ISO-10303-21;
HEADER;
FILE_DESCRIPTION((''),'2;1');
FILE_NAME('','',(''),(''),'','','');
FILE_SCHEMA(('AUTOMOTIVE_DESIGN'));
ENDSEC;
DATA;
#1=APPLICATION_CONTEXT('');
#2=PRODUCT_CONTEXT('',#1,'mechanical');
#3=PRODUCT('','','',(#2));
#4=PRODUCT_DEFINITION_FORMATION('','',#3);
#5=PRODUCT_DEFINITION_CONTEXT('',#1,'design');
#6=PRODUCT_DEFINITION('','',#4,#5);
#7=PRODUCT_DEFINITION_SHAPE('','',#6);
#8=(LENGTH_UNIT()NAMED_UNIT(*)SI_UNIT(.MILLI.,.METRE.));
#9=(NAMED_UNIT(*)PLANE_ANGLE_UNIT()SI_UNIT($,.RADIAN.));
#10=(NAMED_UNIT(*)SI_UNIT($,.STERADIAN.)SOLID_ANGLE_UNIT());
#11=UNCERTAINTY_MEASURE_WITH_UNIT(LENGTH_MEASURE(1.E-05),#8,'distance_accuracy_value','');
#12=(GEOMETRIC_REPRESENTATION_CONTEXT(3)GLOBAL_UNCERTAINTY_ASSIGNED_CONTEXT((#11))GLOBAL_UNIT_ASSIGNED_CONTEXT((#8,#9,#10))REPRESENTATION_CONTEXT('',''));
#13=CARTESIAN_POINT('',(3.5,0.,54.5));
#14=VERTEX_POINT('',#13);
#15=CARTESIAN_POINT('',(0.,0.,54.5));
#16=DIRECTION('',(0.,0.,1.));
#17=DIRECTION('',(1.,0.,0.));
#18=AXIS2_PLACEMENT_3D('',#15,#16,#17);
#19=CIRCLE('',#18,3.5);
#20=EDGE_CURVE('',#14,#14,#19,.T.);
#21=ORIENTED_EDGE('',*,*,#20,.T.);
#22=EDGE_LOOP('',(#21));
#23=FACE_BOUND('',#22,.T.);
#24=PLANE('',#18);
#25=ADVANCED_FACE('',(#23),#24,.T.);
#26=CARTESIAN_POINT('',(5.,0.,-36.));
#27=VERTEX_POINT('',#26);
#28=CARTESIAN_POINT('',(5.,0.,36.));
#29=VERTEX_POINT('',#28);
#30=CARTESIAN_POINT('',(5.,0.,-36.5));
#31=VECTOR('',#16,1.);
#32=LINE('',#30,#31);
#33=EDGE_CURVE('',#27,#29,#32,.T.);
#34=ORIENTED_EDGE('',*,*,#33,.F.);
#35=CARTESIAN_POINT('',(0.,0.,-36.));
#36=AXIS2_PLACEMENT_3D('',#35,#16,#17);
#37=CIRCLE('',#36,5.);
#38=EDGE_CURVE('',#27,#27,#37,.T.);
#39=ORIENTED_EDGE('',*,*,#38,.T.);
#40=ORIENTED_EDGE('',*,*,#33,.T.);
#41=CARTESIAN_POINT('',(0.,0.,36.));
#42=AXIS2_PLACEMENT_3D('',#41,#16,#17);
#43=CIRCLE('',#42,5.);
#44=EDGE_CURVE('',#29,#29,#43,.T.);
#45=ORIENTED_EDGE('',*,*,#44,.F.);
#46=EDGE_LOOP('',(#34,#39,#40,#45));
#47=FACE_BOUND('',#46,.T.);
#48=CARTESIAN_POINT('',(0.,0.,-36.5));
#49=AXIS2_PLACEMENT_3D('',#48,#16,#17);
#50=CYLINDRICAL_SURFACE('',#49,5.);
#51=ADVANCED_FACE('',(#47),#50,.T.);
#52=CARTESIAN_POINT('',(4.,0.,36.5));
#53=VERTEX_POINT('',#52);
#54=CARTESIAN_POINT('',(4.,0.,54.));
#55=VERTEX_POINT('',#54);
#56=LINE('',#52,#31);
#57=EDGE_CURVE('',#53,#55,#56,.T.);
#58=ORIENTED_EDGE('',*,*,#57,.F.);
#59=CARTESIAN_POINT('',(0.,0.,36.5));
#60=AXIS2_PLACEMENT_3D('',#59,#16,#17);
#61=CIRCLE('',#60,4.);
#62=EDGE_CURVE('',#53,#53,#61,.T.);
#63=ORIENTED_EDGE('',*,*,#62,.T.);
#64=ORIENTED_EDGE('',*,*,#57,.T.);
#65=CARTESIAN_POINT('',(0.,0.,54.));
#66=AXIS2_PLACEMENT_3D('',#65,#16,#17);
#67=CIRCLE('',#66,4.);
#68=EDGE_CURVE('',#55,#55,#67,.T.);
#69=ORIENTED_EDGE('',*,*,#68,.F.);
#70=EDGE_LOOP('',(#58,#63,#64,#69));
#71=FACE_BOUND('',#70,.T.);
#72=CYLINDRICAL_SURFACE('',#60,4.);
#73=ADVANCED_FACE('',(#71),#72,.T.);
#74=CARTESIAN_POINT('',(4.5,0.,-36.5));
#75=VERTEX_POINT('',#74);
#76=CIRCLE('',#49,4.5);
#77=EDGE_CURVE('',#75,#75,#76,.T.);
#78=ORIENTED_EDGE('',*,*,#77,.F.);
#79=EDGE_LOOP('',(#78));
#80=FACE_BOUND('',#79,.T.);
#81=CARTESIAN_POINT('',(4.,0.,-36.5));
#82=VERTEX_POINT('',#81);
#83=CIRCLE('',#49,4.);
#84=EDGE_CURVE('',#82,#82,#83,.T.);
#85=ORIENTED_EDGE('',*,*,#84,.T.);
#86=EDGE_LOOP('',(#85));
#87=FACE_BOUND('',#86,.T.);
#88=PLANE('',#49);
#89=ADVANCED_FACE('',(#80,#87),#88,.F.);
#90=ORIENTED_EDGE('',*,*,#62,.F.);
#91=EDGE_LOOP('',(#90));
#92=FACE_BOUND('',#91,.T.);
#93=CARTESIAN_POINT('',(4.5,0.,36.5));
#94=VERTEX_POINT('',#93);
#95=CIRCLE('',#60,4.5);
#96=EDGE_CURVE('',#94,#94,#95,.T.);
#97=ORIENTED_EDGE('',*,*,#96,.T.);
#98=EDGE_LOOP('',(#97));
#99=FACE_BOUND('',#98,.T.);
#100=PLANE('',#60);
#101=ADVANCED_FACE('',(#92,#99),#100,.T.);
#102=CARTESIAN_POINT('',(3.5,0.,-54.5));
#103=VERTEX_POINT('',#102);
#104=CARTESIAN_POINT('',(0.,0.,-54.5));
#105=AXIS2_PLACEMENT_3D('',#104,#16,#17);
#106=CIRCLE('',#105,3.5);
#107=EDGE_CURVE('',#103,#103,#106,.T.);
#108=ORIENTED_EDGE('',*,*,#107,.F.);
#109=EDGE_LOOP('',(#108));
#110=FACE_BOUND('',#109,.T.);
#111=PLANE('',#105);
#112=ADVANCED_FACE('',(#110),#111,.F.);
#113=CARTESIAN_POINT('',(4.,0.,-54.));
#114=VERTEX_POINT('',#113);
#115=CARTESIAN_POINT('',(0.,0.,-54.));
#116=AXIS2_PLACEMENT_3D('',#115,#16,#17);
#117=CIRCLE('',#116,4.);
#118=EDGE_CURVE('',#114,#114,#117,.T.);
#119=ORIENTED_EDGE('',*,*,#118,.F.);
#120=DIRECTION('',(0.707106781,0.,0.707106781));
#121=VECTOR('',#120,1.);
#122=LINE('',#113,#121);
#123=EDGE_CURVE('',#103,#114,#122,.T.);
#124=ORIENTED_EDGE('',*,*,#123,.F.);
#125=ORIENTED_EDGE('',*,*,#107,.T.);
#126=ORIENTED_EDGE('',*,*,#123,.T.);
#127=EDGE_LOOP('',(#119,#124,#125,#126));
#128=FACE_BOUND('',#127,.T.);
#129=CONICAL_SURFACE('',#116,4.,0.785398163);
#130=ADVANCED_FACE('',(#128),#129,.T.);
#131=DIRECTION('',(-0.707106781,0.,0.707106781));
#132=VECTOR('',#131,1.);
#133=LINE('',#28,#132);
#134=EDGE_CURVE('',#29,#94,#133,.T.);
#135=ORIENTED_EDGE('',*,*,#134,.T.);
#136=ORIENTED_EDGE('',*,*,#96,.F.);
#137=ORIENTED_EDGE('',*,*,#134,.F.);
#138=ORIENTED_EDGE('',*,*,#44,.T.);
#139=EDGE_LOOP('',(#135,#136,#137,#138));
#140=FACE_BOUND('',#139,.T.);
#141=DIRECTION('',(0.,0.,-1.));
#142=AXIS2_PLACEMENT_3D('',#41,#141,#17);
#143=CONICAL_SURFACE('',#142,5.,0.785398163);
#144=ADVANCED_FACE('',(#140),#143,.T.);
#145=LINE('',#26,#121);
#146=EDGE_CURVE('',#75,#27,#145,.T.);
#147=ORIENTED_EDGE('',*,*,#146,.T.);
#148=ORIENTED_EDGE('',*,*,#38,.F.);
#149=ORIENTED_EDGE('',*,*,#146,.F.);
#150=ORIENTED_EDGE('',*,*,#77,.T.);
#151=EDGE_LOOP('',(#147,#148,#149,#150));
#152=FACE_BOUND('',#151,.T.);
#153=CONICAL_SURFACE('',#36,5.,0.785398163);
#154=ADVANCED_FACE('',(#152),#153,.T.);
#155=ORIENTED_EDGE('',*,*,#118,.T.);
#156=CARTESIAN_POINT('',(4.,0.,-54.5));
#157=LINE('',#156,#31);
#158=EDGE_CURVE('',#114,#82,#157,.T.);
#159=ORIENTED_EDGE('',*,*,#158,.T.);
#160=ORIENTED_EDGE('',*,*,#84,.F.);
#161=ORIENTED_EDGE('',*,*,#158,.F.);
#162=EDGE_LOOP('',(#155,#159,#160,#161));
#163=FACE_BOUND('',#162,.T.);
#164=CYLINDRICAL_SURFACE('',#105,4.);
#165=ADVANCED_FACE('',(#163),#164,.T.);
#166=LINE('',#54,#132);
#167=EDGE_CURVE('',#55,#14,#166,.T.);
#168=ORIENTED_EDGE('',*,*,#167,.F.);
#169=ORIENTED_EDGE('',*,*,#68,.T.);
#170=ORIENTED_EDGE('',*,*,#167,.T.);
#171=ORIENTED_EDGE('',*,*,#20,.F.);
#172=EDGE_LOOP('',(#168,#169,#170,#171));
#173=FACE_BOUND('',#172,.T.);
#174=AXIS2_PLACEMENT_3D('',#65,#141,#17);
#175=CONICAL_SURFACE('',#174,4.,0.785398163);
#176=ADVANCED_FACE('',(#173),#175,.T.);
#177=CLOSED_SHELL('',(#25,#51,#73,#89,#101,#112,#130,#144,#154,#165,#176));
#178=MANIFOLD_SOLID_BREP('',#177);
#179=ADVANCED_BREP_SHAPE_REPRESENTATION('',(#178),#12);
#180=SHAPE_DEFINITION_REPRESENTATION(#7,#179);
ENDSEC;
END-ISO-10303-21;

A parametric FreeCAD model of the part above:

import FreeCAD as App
import Part
import Sketcher

V = App.Vector


def edges_at(feature, points):
    """Names of the edges that pass closest to the given points."""
    edges = feature.Shape.Edges
    near = lambda p: min(range(len(edges)), key=lambda i: edges[i].distToShape(Part.Vertex(*p))[0])
    return sorted({f"Edge{near(p) + 1}" for p in points})

doc = App.newDocument("Part")
body = doc.addObject("PartDesign::Body", "Body")

# Sketch on XZ plane
sketch1 = doc.addObject("Sketcher::SketchObject", "Sketch")
body.addObject(sketch1)
sketch1.AttachmentSupport = (doc.XZ_Plane, [""])
sketch1.MapMode = "FlatFace"
sketch1.addGeometry([
    Part.LineSegment(V(0, -54.5, 0), V(0, 54.5, 0)),  # 0
    Part.LineSegment(V(0, 54.5, 0), V(4, 54.5, 0)),  # 1
    Part.LineSegment(V(4, 54.5, 0), V(4, 36.5, 0)),  # 2
    Part.LineSegment(V(4, 36.5, 0), V(5, 36.5, 0)),  # 3
    Part.LineSegment(V(5, 36.5, 0), V(5, -36.5, 0)),  # 4
    Part.LineSegment(V(5, -36.5, 0), V(4, -36.5, 0)),  # 5
    Part.LineSegment(V(4, -36.5, 0), V(4, -54.5, 0)),  # 6
    Part.LineSegment(V(4, -54.5, 0), V(0, -54.5, 0)),  # 7
], False)
sketch1.addConstraint([
    Sketcher.Constraint("Coincident", 0, 2, 1, 1),
    Sketcher.Constraint("Coincident", 1, 2, 2, 1),
    Sketcher.Constraint("Coincident", 2, 2, 3, 1),
    Sketcher.Constraint("Coincident", 3, 2, 4, 1),
    Sketcher.Constraint("Coincident", 4, 2, 5, 1),
    Sketcher.Constraint("Coincident", 5, 2, 6, 1),
    Sketcher.Constraint("Coincident", 6, 2, 7, 1),
    Sketcher.Constraint("Coincident", 7, 2, 0, 1),
    Sketcher.Constraint("Vertical", 0),
    Sketcher.Constraint("Horizontal", 1),
    Sketcher.Constraint("Vertical", 2),
    Sketcher.Constraint("Horizontal", 3),
    Sketcher.Constraint("Vertical", 4),
    Sketcher.Constraint("Horizontal", 5),
    Sketcher.Constraint("Vertical", 6),
    Sketcher.Constraint("Horizontal", 7),
    Sketcher.Constraint("Symmetric", 0, 2, 7, 2, -1, 1),
    Sketcher.Constraint("Symmetric", 2, 2, 5, 2, -1),
    Sketcher.Constraint("DistanceY", 2, 2, 2, 1, 18.0),
    Sketcher.Constraint("DistanceY", 4, 2, 4, 1, 73.0),
    Sketcher.Constraint("DistanceX", 1, 1, 1, 2, 4.0),
    Sketcher.Constraint("DistanceX", 3, 1, 3, 2, 1.0),
])
revolution = doc.addObject("PartDesign::Revolution", "Revolution")
body.addObject(revolution)
revolution.Profile = sketch1
revolution.ReferenceAxis = (sketch1, ["V_Axis"])
revolution.Angle = 360
doc.recompute()

chamfer = doc.addObject("PartDesign::Chamfer", "Chamfer")
body.addObject(chamfer)
chamfer.Base = (revolution, edges_at(revolution, [
    (-4, 0, -54.5),
    (-4, 0, 54.5),
    (-5, 0, 36.5),
    (-5, 0, -36.5),
]))
chamfer.Size = 0.5

doc.recompute()
